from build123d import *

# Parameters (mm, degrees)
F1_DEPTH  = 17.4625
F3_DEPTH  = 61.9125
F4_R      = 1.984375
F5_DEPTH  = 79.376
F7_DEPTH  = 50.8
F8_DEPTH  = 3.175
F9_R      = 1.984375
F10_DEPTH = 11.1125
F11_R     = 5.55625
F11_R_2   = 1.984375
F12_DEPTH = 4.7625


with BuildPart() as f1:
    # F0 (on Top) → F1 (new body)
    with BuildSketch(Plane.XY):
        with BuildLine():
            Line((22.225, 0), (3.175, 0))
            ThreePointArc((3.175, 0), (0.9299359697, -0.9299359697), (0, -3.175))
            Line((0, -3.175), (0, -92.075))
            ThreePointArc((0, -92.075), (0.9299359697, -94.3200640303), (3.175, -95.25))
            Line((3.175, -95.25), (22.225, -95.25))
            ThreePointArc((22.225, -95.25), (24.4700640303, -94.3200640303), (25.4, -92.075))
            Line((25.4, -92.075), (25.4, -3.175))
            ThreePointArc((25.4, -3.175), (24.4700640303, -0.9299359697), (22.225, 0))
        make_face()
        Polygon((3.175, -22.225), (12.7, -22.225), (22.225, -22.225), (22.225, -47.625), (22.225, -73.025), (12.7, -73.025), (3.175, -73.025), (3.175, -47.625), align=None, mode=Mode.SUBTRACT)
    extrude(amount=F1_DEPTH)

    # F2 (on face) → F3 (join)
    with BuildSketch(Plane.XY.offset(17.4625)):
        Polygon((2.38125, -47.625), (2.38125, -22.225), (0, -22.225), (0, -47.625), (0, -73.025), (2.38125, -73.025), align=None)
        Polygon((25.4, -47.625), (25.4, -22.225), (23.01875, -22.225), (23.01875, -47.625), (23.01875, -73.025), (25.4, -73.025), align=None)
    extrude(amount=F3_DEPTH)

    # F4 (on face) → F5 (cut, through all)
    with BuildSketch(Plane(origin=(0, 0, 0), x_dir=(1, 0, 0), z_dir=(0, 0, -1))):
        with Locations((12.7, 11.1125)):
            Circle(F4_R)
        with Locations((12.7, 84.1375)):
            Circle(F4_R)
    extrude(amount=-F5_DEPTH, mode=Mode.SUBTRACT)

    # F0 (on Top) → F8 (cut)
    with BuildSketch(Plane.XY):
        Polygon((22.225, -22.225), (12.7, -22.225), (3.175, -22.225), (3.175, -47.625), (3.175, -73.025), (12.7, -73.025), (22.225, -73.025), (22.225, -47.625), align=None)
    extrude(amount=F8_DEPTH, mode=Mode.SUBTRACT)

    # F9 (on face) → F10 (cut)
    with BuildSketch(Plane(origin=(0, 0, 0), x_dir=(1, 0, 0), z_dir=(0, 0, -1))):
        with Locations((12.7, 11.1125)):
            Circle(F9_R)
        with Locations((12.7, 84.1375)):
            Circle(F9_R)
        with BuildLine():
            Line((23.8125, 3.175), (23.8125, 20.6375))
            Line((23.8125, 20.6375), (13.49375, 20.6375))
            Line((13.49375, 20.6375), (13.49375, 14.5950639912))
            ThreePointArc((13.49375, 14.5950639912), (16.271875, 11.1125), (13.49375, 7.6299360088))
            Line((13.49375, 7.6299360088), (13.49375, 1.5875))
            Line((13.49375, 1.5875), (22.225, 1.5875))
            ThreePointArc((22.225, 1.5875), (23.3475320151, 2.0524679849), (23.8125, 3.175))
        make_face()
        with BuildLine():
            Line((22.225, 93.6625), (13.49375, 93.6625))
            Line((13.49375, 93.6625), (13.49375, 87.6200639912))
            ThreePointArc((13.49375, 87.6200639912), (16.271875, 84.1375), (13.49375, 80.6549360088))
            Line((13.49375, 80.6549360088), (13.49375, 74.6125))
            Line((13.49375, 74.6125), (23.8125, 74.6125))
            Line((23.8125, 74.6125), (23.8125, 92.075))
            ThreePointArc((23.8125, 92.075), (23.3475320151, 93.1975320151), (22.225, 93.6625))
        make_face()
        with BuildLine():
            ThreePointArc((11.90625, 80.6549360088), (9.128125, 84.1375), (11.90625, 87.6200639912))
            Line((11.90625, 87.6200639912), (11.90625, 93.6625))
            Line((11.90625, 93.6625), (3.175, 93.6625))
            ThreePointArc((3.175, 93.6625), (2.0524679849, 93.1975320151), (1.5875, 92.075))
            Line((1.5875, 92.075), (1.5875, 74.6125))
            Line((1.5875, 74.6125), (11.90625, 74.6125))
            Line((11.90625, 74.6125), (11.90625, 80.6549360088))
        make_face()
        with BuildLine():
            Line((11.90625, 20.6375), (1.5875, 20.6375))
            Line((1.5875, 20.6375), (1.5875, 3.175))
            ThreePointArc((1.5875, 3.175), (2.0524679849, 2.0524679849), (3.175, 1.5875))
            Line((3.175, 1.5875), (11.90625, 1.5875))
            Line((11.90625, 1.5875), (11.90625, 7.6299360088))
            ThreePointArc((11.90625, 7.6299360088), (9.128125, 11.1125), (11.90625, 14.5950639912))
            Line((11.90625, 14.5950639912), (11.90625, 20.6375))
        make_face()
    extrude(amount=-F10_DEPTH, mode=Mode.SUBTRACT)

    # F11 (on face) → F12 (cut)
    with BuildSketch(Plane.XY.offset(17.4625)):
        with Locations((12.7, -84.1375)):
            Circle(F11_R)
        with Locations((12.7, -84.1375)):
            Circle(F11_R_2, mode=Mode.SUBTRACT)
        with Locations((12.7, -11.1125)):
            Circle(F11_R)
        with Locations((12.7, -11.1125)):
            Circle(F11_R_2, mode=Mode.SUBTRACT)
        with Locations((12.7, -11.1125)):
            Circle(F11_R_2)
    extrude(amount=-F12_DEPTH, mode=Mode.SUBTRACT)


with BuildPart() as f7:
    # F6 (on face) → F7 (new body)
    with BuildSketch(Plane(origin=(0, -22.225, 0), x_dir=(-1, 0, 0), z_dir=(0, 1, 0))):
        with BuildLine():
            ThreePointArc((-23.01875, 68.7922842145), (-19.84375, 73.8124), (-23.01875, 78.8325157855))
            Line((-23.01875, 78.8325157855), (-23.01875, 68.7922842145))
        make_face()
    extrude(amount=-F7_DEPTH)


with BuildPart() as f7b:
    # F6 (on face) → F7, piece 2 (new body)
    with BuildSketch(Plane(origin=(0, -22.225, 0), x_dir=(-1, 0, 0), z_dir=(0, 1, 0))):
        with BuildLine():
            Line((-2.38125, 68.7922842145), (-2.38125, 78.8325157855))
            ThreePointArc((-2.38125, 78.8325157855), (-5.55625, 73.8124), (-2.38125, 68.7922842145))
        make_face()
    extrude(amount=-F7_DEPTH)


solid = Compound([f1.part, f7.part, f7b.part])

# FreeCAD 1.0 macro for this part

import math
import FreeCAD as App
import Part
import Sketcher

V = App.Vector
Q = App.Units.Quantity


def add_polygon(sketch, points):
    """Adds a closed chain of lines whose ends are joined by coincident constraints."""
    first, n = sketch.GeometryCount, len(points)
    for a, b in zip(points, points[1:] + points[:1]):
        sketch.addGeometry(Part.LineSegment(App.Vector(*a, 0), App.Vector(*b, 0)), False)
    for i in range(n):
        sketch.addConstraint(Sketcher.Constraint("Coincident", first + i, 2, first + (i + 1) % n, 1))

doc = App.newDocument("Part")
body = doc.addObject("PartDesign::Body", "Body")

# Sketch on XY plane
sketch1 = body.newObject("Sketcher::SketchObject", "Sketch")
sketch1.AttachmentSupport = (doc.getObject("XY_Plane"), [""])
sketch1.MapMode = "FlatFace"
sketch1.addGeometry(Part.LineSegment(V(22.2, 0, 0), V(3.2, 0, 0)), False)  # 0
sketch1.addGeometry(Part.ArcOfCircle(Part.Circle(V(3.2, -3.2, 0), V(0, 0, 1), 3.2), math.radians(90), math.radians(180)), False)  # 1
sketch1.addGeometry(Part.LineSegment(V(0, -3.2, 0), V(0, -92.1, 0)), False)  # 2
sketch1.addGeometry(Part.ArcOfCircle(Part.Circle(V(3.2, -92.1, 0), V(0, 0, 1), 3.2), math.radians(180), math.radians(270)), False)  # 3
sketch1.addGeometry(Part.LineSegment(V(3.2, -95.2, 0), V(22.2, -95.2, 0)), False)  # 4
sketch1.addGeometry(Part.ArcOfCircle(Part.Circle(V(22.2, -92.1, 0), V(0, 0, 1), 3.2), math.radians(-90), math.radians(0)), False)  # 5
sketch1.addGeometry(Part.LineSegment(V(25.4, -92.1, 0), V(25.4, -3.2, 0)), False)  # 6
sketch1.addGeometry(Part.ArcOfCircle(Part.Circle(V(22.2, -3.2, 0), V(0, 0, 1), 3.2), math.radians(0), math.radians(90)), False)  # 7
add_polygon(sketch1, [(3.2, -73), (3.2, -22.2), (22.2, -22.2), (22.2, -73)])  # lines 8-11
sketch1.addConstraint([
    Sketcher.Constraint("Tangent", 0, 2, 1, 1),
    Sketcher.Constraint("Tangent", 1, 2, 2, 1),
    Sketcher.Constraint("Tangent", 2, 2, 3, 1),
    Sketcher.Constraint("Tangent", 3, 2, 4, 1),
    Sketcher.Constraint("Tangent", 4, 2, 5, 1),
    Sketcher.Constraint("Tangent", 5, 2, 6, 1),
    Sketcher.Constraint("Tangent", 6, 2, 7, 1),
    Sketcher.Constraint("Tangent", 7, 2, 0, 1),
    Sketcher.Constraint("Horizontal", 0),
    Sketcher.Constraint("Vertical", 2),
    Sketcher.Constraint("Horizontal", 4),
    Sketcher.Constraint("Vertical", 6),
    Sketcher.Constraint("Vertical", 8),
    Sketcher.Constraint("Horizontal", 9),
    Sketcher.Constraint("Vertical", 10),
    Sketcher.Constraint("Horizontal", 11),
    Sketcher.Constraint("Equal", 1, 3),
    Sketcher.Constraint("Equal", 3, 5),
    Sketcher.Constraint("Equal", 5, 7),
    Sketcher.Constraint("PointOnObject", 0, 2, -1),
    Sketcher.Constraint("PointOnObject", 1, 2, -2),
    Sketcher.Constraint("Vertical", 3, 2, 8, 2),
    Sketcher.Constraint("Vertical", 7, 2, 9, 2),
    Sketcher.Constraint("DistanceY", 8, 1, 8, 2, Q("2 in")),
    Sketcher.Constraint("DistanceY", 2, 2, 2, 1, Q("3.5 in")),
    Sketcher.Constraint("DistanceX", -1, 1, 5, 2, Q("1 in")),
    Sketcher.Constraint("Radius", 1, Q("0.125 in")),
    Sketcher.Constraint("DistanceY", 8, 2, 1, 3, Q("0.75 in")),
])
pad1 = body.newObject("PartDesign::Pad", "Pad")
pad1.Profile = sketch1
pad1.Length = Q("0.6875 in")

# Sketch on XY plane
sketch2 = body.newObject("Sketcher::SketchObject", "Sketch001")
sketch2.AttachmentSupport = (doc.getObject("XY_Plane"), [""])
sketch2.MapMode = "FlatFace"
sketch2.AttachmentOffset = App.Placement(V(0, 0, 0.6875 * 25.4), App.Rotation())
add_polygon(sketch2, [(2.4, -22.2), (0, -22.2), (0, -73), (2.4, -73)])  # lines 0-3
add_polygon(sketch2, [(25.4, -22.2), (23, -22.2), (23, -73), (25.4, -73)])  # lines 4-7
sketch2.addConstraint([
    Sketcher.Constraint("Horizontal", 0),
    Sketcher.Constraint("Vertical", 1),
    Sketcher.Constraint("Horizontal", 2),
    Sketcher.Constraint("Vertical", 3),
    Sketcher.Constraint("Horizontal", 4),
    Sketcher.Constraint("Vertical", 5),
    Sketcher.Constraint("Horizontal", 6),
    Sketcher.Constraint("Vertical", 7),
    Sketcher.Constraint("PointOnObject", 0, 2, -2),
    Sketcher.Constraint("Horizontal", 3, 2, 4, 2),
    Sketcher.Constraint("Horizontal", 2, 2, 5, 2),
    Sketcher.Constraint("Equal", 2, 4),
    Sketcher.Constraint("DistanceY", 1, 2, 1, 1, Q("2 in")),
    Sketcher.Constraint("DistanceX", -1, 1, 6, 2, Q("1 in")),
    Sketcher.Constraint("DistanceX", 0, 2, 0, 1, Q("0.09375 in")),
    Sketcher.Constraint("DistanceY", 0, 2, -1, 1, Q("0.875 in")),
])
pad2 = body.newObject("PartDesign::Pad", "Pad001")
pad2.Profile = sketch2
pad2.Length = Q("2.4375 in")

# Sketch on XY plane
sketch3 = body.newObject("Sketcher::SketchObject", "Sketch002")
sketch3.AttachmentSupport = (doc.getObject("XY_Plane"), [""])
sketch3.MapMode = "FlatFace"
sketch3.addGeometry([
    Part.Circle(V(12.7, -11.1, 0), V(0, 0, 1), 2),
    Part.Circle(V(12.7, -84.1, 0), V(0, 0, 1), 2),
], False)
sketch3.addConstraint([
    Sketcher.Constraint("Equal", 0, 1),
    Sketcher.Constraint("Vertical", 0, 3, 1, 3),
    Sketcher.Constraint("Diameter", 0, Q("0.15625 in")),
    Sketcher.Constraint("DistanceX", -1, 1, 0, 3, Q("0.5 in")),
    Sketcher.Constraint("DistanceY", 0, 3, -1, 1, Q("0.4375 in")),
    Sketcher.Constraint("DistanceY", 1, 3, -1, 1, Q("3.3125 in")),
])
pocket1 = body.newObject("PartDesign::Pocket", "Pocket")
pocket1.Profile = sketch3
pocket1.Type = "ThroughAll"
pocket1.Reversed = True

# Sketch on XY plane
sketch4 = body.newObject("Sketcher::SketchObject", "Sketch003")
sketch4.AttachmentSupport = (doc.getObject("XY_Plane"), [""])
sketch4.MapMode = "FlatFace"
add_polygon(sketch4, [(22, -22), (3, -22), (3, -73), (22, -73)])  # lines 0-3
sketch4.addConstraint([
    Sketcher.Constraint("Horizontal", 0),
    Sketcher.Constraint("Vertical", 1),
    Sketcher.Constraint("Horizontal", 2),
    Sketcher.Constraint("Vertical", 3),
    Sketcher.Constraint("DistanceY", 1, 2, 1, 1, Q("2 in")),
    Sketcher.Constraint("DistanceX", 0, 2, 0, 1, Q("0.75 in")),
    Sketcher.Constraint("DistanceX", -1, 1, 0, 2, Q("0.125 in")),
    Sketcher.Constraint("DistanceY", 0, 2, -1, 1, Q("0.875 in")),
])
pocket2 = body.newObject("PartDesign::Pocket", "Pocket001")
pocket2.Profile = sketch4
pocket2.Length = Q("0.125 in")
pocket2.Reversed = True

# Sketch on XY plane
sketch5 = body.newObject("Sketcher::SketchObject", "Sketch004")
sketch5.AttachmentSupport = (doc.getObject("XY_Plane"), [""])
sketch5.MapMode = "FlatFace"
sketch5.addGeometry([
    Part.Circle(V(12.7, -11.1, 0), V(0, 0, 1), 2),  # 0
    Part.Circle(V(12.7, -84.1, 0), V(0, 0, 1), 2),  # 1
    Part.LineSegment(V(23.8, -3.2, 0), V(23.8, -20.6, 0)),  # 2
    Part.LineSegment(V(23.8, -20.6, 0), V(13.5, -20.6, 0)),  # 3
    Part.LineSegment(V(13.5, -20.6, 0), V(13.5, -14.6, 0)),  # 4
    Part.ArcOfCircle(Part.Circle(V(12.7, -11.1, 0), V(0, 0, 1), 3.6), math.radians(-77), math.radians(77)),  # 5
    Part.LineSegment(V(13.5, -7.6, 0), V(13.5, -1.6, 0)),  # 6
    Part.LineSegment(V(13.5, -1.6, 0), V(22.2, -1.6, 0)),  # 7
    Part.ArcOfCircle(Part.Circle(V(22.2, -3.2, 0), V(0, 0, 1), 1.6), math.radians(0), math.radians(90)),  # 8
    Part.LineSegment(V(22.2, -93.7, 0), V(13.5, -93.7, 0)),  # 9
    Part.LineSegment(V(13.5, -93.7, 0), V(13.5, -87.6, 0)),  # 10
    Part.ArcOfCircle(Part.Circle(V(12.7, -84.1, 0), V(0, 0, 1), 3.6), math.radians(-77), math.radians(77)),  # 11
    Part.LineSegment(V(13.5, -80.7, 0), V(13.5, -74.6, 0)),  # 12
    Part.LineSegment(V(13.5, -74.6, 0), V(23.8, -74.6, 0)),  # 13
    Part.LineSegment(V(23.8, -74.6, 0), V(23.8, -92.1, 0)),  # 14
    Part.ArcOfCircle(Part.Circle(V(22.2, -92.1, 0), V(0, 0, 1), 1.6), math.radians(-90), math.radians(0)),  # 15
    Part.ArcOfCircle(Part.Circle(V(12.7, -84.1, 0), V(0, 0, 1), 3.6), math.radians(103), math.radians(257)),  # 16
    Part.LineSegment(V(11.9, -87.6, 0), V(11.9, -93.7, 0)),  # 17
    Part.LineSegment(V(11.9, -93.7, 0), V(3.2, -93.7, 0)),  # 18
    Part.ArcOfCircle(Part.Circle(V(3.2, -92.1, 0), V(0, 0, 1), 1.6), math.radians(180), math.radians(270)),  # 19
    Part.LineSegment(V(1.6, -92.1, 0), V(1.6, -74.6, 0)),  # 20
    Part.LineSegment(V(1.6, -74.6, 0), V(11.9, -74.6, 0)),  # 21
    Part.LineSegment(V(11.9, -74.6, 0), V(11.9, -80.7, 0)),  # 22
    Part.LineSegment(V(11.9, -20.6, 0), V(1.6, -20.6, 0)),  # 23
    Part.LineSegment(V(1.6, -20.6, 0), V(1.6, -3.2, 0)),  # 24
    Part.ArcOfCircle(Part.Circle(V(3.2, -3.2, 0), V(0, 0, 1), 1.6), math.radians(90), math.radians(180)),  # 25
    Part.LineSegment(V(3.2, -1.6, 0), V(11.9, -1.6, 0)),  # 26
    Part.LineSegment(V(11.9, -1.6, 0), V(11.9, -7.6, 0)),  # 27
    Part.ArcOfCircle(Part.Circle(V(12.7, -11.1, 0), V(0, 0, 1), 3.6), math.radians(103), math.radians(257)),  # 28
    Part.LineSegment(V(11.9, -14.6, 0), V(11.9, -20.6, 0)),  # 29
], False)
sketch5.addConstraint([
    Sketcher.Constraint("Coincident", 2, 2, 3, 1),
    Sketcher.Constraint("Coincident", 3, 2, 4, 1),
    Sketcher.Constraint("Coincident", 4, 2, 5, 1),
    Sketcher.Constraint("Coincident", 5, 2, 6, 1),
    Sketcher.Constraint("Coincident", 6, 2, 7, 1),
    Sketcher.Constraint("Tangent", 7, 2, 8, 2),
    Sketcher.Constraint("Tangent", 8, 1, 2, 1),
    Sketcher.Constraint("Coincident", 9, 2, 10, 1),
    Sketcher.Constraint("Coincident", 10, 2, 11, 1),
    Sketcher.Constraint("Coincident", 11, 2, 12, 1),
    Sketcher.Constraint("Coincident", 12, 2, 13, 1),
    Sketcher.Constraint("Coincident", 13, 2, 14, 1),
    Sketcher.Constraint("Tangent", 14, 2, 15, 2),
    Sketcher.Constraint("Tangent", 15, 1, 9, 1),
    Sketcher.Constraint("Coincident", 16, 2, 17, 1),
    Sketcher.Constraint("Coincident", 17, 2, 18, 1),
    Sketcher.Constraint("Tangent", 18, 2, 19, 2),
    Sketcher.Constraint("Tangent", 19, 1, 20, 1),
    Sketcher.Constraint("Coincident", 20, 2, 21, 1),
    Sketcher.Constraint("Coincident", 21, 2, 22, 1),
    Sketcher.Constraint("Coincident", 22, 2, 16, 1),
    Sketcher.Constraint("Coincident", 23, 2, 24, 1),
    Sketcher.Constraint("Tangent", 24, 2, 25, 2),
    Sketcher.Constraint("Tangent", 25, 1, 26, 1),
    Sketcher.Constraint("Coincident", 26, 2, 27, 1),
    Sketcher.Constraint("Coincident", 27, 2, 28, 1),
    Sketcher.Constraint("Coincident", 28, 2, 29, 1),
    Sketcher.Constraint("Coincident", 29, 2, 23, 1),
    Sketcher.Constraint("Vertical", 2),
    Sketcher.Constraint("Horizontal", 3),
    Sketcher.Constraint("Vertical", 4),
    Sketcher.Constraint("Vertical", 6),
    Sketcher.Constraint("Horizontal", 7),
    Sketcher.Constraint("Horizontal", 9),
    Sketcher.Constraint("Vertical", 10),
    Sketcher.Constraint("Vertical", 12),
    Sketcher.Constraint("Horizontal", 13),
    Sketcher.Constraint("Vertical", 14),
    Sketcher.Constraint("Vertical", 17),
    Sketcher.Constraint("Horizontal", 18),
    Sketcher.Constraint("Vertical", 20),
    Sketcher.Constraint("Horizontal", 21),
    Sketcher.Constraint("Vertical", 22),
    Sketcher.Constraint("Horizontal", 23),
    Sketcher.Constraint("Vertical", 24),
    Sketcher.Constraint("Horizontal", 26),
    Sketcher.Constraint("Vertical", 27),
    Sketcher.Constraint("Vertical", 29),
    Sketcher.Constraint("Coincident", 5, 3, 0, 3),
    Sketcher.Constraint("Coincident", 11, 3, 1, 3),
    Sketcher.Constraint("Coincident", 16, 3, 1, 3),
    Sketcher.Constraint("Coincident", 28, 3, 0, 3),
    Sketcher.Constraint("Equal", 0, 1),
    Sketcher.Constraint("Equal", 5, 11),
    Sketcher.Constraint("Equal", 8, 15),
    Sketcher.Constraint("Equal", 11, 16),
    Sketcher.Constraint("Equal", 15, 19),
    Sketcher.Constraint("Equal", 19, 25),
    Sketcher.Constraint("Equal", 16, 28),
    Sketcher.Constraint("Horizontal", 15, 3, 19, 3),
    Sketcher.Constraint("Horizontal", 8, 3, 25, 3),
    Sketcher.Constraint("Horizontal", 10, 2, 16, 2),
    Sketcher.Constraint("Horizontal", 13, 2, 20, 2),
    Sketcher.Constraint("Horizontal", 11, 2, 22, 2),
    Sketcher.Constraint("Horizontal", 3, 2, 23, 2),
    Sketcher.Constraint("Horizontal", 5, 2, 27, 2),
    Sketcher.Constraint("Horizontal", 4, 2, 28, 2),
    Sketcher.Constraint("Vertical", 0, 3, 1, 3),
    Sketcher.Constraint("Vertical", 8, 3, 15, 3),
    Sketcher.Constraint("Vertical", 19, 3, 25, 3),
    Sketcher.Constraint("Vertical", 4, 2, 5, 2),
    Sketcher.Constraint("Vertical", 6, 2, 9, 2),
    Sketcher.Constraint("Vertical", 10, 2, 11, 2),
    Sketcher.Constraint("Equal", 9, 18),
    Sketcher.Constraint("Equal", 4, 6),
    Sketcher.Constraint("Equal", 6, 10),
    Sketcher.Constraint("Equal", 10, 12),
    Sketcher.Constraint("Diameter", 0, Q("0.15625 in")),
    Sketcher.Constraint("Radius", 5, Q("0.140625 in")),
    Sketcher.Constraint("Radius", 8, Q("0.0625 in")),
    Sketcher.Constraint("DistanceX", -1, 1, 0, 3, Q("0.5 in")),
    Sketcher.Constraint("DistanceY", 15, 3, 8, 3, Q("3.5 in")),
    Sketcher.Constraint("DistanceX", 3, 2, 3, 1, Q("0.40625 in")),
    Sketcher.Constraint("DistanceY", 2, 2, 2, 1, Q("0.6875 in")),
    Sketcher.Constraint("DistanceX", 19, 3, 15, 3, Q("0.75 in")),
    Sketcher.Constraint("DistanceY", 0, 3, -1, 1, Q("0.4375 in")),
])
pocket3 = body.newObject("PartDesign::Pocket", "Pocket002")
pocket3.Profile = sketch5
pocket3.Length = Q("0.4375 in")
pocket3.Reversed = True

# Sketch on XY plane
sketch6 = body.newObject("Sketcher::SketchObject", "Sketch005")
sketch6.AttachmentSupport = (doc.getObject("XY_Plane"), [""])
sketch6.MapMode = "FlatFace"
sketch6.AttachmentOffset = App.Placement(V(0, 0, 0.6875 * 25.4), App.Rotation())
sketch6.addGeometry([
    Part.Circle(V(12.7, -84.1, 0), V(0, 0, 1), 5.6),
    Part.Circle(V(12.7, -84.1, 0), V(0, 0, 1), 2),
    Part.Circle(V(12.7, -11.1, 0), V(0, 0, 1), 5.6),
], False)
sketch6.addConstraint([
    Sketcher.Constraint("Coincident", 1, 3, 0, 3),
    Sketcher.Constraint("Equal", 0, 2),
    Sketcher.Constraint("Vertical", 1, 3, 2, 3),
    Sketcher.Constraint("Diameter", 0, Q("0.4375 in")),
    Sketcher.Constraint("Diameter", 1, Q("0.15625 in")),
    Sketcher.Constraint("DistanceX", -1, 1, 0, 3, Q("0.5 in")),
    Sketcher.Constraint("DistanceY", 0, 3, -1, 1, Q("3.3125 in")),
    Sketcher.Constraint("DistanceY", 2, 3, -1, 1, Q("0.4375 in")),
])
pocket4 = body.newObject("PartDesign::Pocket", "Pocket003")
pocket4.Profile = sketch6
pocket4.Length = Q("0.1875 in")
body2 = doc.addObject("PartDesign::Body", "Body001")

# Sketch on XZ plane
sketch7 = body2.newObject("Sketcher::SketchObject", "Sketch006")
sketch7.AttachmentSupport = (doc.getObject("XZ_Plane001"), [""])
sketch7.MapMode = "FlatFace"
sketch7.AttachmentOffset = App.Placement(V(0, 0, 0.875 * 25.4), App.Rotation())
sketch7.addGeometry([
    Part.ArcOfCircle(Part.Circle(V(25, 74, 0), V(0, 0, 1), 6), math.radians(115), math.radians(245)),
    Part.LineSegment(V(23, 79, 0), V(23, 69, 0)),
], False)
sketch7.addConstraint([
    Sketcher.Constraint("Coincident", 0, 1, 1, 1),
    Sketcher.Constraint("Coincident", 1, 2, 0, 2),
    Sketcher.Constraint("Vertical", 1),
    Sketcher.Constraint("DistanceX", -1, 1, 0, 3, Q("1 in")),
    Sketcher.Constraint("Radius", 0, Q("0.21875 in")),
    Sketcher.Constraint("DistanceY", -1, 1, 0, 3, Q("2.906 in")),
    Sketcher.Constraint("DistanceX", -1, 1, 0, 1, Q("0.90625 in")),
])
pad3 = body2.newObject("PartDesign::Pad", "Pad002")
pad3.Profile = sketch7
pad3.Length = Q("2 in")
body3 = doc.addObject("PartDesign::Body", "Body002")

# Sketch on XZ plane
sketch8 = body3.newObject("Sketcher::SketchObject", "Sketch007")
sketch8.AttachmentSupport = (doc.getObject("XZ_Plane002"), [""])
sketch8.MapMode = "FlatFace"
sketch8.AttachmentOffset = App.Placement(V(0, 0, 0.875 * 25.4), App.Rotation())
sketch8.addGeometry([
    Part.LineSegment(V(2, 69, 0), V(2, 79, 0)),
    Part.ArcOfCircle(Part.Circle(V(0, 74, 0), V(0, 0, 1), 6), math.radians(-65), math.radians(65)),
], False)
sketch8.addConstraint([
    Sketcher.Constraint("Coincident", 0, 1, 1, 1),
    Sketcher.Constraint("Coincident", 1, 2, 0, 2),
    Sketcher.Constraint("Vertical", 0),
    Sketcher.Constraint("PointOnObject", 1, 3, -2),
    Sketcher.Constraint("Radius", 1, Q("0.21875 in")),
    Sketcher.Constraint("DistanceY", -1, 1, 1, 3, Q("2.906 in")),
    Sketcher.Constraint("DistanceX", -1, 1, 0, 1, Q("0.09375 in")),
])
pad4 = body3.newObject("PartDesign::Pad", "Pad003")
pad4.Profile = sketch8
pad4.Length = Q("2 in")

doc.recompute()
